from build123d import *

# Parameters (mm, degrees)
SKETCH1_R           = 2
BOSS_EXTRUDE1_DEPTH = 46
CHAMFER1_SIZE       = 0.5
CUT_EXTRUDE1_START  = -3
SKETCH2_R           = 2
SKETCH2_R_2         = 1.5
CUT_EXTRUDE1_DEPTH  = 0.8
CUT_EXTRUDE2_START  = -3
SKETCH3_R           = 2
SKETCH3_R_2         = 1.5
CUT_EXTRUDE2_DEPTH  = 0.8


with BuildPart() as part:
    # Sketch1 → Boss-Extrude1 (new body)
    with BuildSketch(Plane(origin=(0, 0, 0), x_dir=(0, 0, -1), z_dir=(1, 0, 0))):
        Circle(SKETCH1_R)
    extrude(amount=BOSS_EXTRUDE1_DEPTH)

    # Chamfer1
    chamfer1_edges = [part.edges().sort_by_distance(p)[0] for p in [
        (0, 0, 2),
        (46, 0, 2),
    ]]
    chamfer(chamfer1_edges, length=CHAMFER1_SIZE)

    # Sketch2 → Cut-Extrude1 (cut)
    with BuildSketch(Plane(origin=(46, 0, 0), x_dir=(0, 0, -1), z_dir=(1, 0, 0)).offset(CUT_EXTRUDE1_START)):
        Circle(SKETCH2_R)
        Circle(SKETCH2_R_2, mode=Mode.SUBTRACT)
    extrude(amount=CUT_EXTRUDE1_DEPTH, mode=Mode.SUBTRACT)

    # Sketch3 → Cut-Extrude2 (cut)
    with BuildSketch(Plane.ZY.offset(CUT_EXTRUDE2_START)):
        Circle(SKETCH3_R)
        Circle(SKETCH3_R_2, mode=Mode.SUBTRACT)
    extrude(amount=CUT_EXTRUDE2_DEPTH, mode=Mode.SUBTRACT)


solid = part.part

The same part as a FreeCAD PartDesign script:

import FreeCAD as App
import Part
import Sketcher

V = App.Vector
Q = App.Units.Quantity


def edges_at(feature, points):
    """Names of the edges that pass closest to the given points."""
    edges = feature.Shape.Edges
    near = lambda p: min(range(len(edges)), key=lambda i: edges[i].distToShape(Part.Vertex(*p))[0])
    return sorted({f"Edge{near(p) + 1}" for p in points})

doc = App.newDocument("Part")
body = doc.addObject("PartDesign::Body", "Body")

sketch1 = body.newObject("Sketcher::SketchObject", "Sketch")
sketch1.AttachmentSupport = (doc.getObject("YZ_Plane"), [""])
sketch1.MapMode = "FlatFace"
sketch1.addGeometry(Part.Circle(V(0, 0, 0), V(0, 0, 1), 2), False)
sketch1.addConstraint(Sketcher.Constraint("Coincident", 0, 3, -1, 1))
sketch1.addConstraint(Sketcher.Constraint("Diameter", 0, Q("4 mm")))
pad1 = body.newObject("PartDesign::Pad", "Pad")
pad1.Profile = sketch1
pad1.Length = 46
doc.recompute()

chamfer = body.newObject("PartDesign::Chamfer", "Chamfer")
chamfer.Base = (pad1, edges_at(pad1, [(0, 0, 2), (46, 0, 2)]))
chamfer.Size = 0.5

sketch2 = body.newObject("Sketcher::SketchObject", "Sketch001")
sketch2.AttachmentSupport = (doc.getObject("YZ_Plane"), [""])
sketch2.MapMode = "FlatFace"
sketch2.AttachmentOffset = App.Placement(V(0, 0, 43), App.Rotation())
sketch2.addGeometry(Part.Circle(V(0, 0, 0), V(0, 0, 1), 2), False)
sketch2.addGeometry(Part.Circle(V(0, 0, 0), V(0, 0, 1), 1.5), False)
sketch2.addConstraint(Sketcher.Constraint("Coincident", 0, 3, -1, 1))
sketch2.addConstraint(Sketcher.Constraint("Coincident", 1, 3, -1, 1))
sketch2.addConstraint(Sketcher.Constraint("Diameter", 0, Q("4 mm")))
sketch2.addConstraint(Sketcher.Constraint("Diameter", 1, Q("3 mm")))
pocket1 = body.newObject("PartDesign::Pocket", "Pocket")
pocket1.Profile = sketch2
pocket1.Length = 0.8
pocket1.Reversed = True

sketch3 = body.newObject("Sketcher::SketchObject", "Sketch002")
sketch3.AttachmentSupport = (doc.getObject("YZ_Plane"), [""])
sketch3.MapMode = "FlatFace"
sketch3.AttachmentOffset = App.Placement(V(0, 0, 3), App.Rotation())
sketch3.addGeometry(Part.Circle(V(0, 0, 0), V(0, 0, 1), 2), False)
sketch3.addGeometry(Part.Circle(V(0, 0, 0), V(0, 0, 1), 1.5), False)
sketch3.addConstraint(Sketcher.Constraint("Coincident", 0, 3, -1, 1))
sketch3.addConstraint(Sketcher.Constraint("Coincident", 1, 3, -1, 1))
sketch3.addConstraint(Sketcher.Constraint("Diameter", 0, Q("4 mm")))
sketch3.addConstraint(Sketcher.Constraint("Diameter", 1, Q("3 mm")))
pocket2 = body.newObject("PartDesign::Pocket", "Pocket001")
pocket2.Profile = sketch3
pocket2.Length = 0.8

doc.recompute()
